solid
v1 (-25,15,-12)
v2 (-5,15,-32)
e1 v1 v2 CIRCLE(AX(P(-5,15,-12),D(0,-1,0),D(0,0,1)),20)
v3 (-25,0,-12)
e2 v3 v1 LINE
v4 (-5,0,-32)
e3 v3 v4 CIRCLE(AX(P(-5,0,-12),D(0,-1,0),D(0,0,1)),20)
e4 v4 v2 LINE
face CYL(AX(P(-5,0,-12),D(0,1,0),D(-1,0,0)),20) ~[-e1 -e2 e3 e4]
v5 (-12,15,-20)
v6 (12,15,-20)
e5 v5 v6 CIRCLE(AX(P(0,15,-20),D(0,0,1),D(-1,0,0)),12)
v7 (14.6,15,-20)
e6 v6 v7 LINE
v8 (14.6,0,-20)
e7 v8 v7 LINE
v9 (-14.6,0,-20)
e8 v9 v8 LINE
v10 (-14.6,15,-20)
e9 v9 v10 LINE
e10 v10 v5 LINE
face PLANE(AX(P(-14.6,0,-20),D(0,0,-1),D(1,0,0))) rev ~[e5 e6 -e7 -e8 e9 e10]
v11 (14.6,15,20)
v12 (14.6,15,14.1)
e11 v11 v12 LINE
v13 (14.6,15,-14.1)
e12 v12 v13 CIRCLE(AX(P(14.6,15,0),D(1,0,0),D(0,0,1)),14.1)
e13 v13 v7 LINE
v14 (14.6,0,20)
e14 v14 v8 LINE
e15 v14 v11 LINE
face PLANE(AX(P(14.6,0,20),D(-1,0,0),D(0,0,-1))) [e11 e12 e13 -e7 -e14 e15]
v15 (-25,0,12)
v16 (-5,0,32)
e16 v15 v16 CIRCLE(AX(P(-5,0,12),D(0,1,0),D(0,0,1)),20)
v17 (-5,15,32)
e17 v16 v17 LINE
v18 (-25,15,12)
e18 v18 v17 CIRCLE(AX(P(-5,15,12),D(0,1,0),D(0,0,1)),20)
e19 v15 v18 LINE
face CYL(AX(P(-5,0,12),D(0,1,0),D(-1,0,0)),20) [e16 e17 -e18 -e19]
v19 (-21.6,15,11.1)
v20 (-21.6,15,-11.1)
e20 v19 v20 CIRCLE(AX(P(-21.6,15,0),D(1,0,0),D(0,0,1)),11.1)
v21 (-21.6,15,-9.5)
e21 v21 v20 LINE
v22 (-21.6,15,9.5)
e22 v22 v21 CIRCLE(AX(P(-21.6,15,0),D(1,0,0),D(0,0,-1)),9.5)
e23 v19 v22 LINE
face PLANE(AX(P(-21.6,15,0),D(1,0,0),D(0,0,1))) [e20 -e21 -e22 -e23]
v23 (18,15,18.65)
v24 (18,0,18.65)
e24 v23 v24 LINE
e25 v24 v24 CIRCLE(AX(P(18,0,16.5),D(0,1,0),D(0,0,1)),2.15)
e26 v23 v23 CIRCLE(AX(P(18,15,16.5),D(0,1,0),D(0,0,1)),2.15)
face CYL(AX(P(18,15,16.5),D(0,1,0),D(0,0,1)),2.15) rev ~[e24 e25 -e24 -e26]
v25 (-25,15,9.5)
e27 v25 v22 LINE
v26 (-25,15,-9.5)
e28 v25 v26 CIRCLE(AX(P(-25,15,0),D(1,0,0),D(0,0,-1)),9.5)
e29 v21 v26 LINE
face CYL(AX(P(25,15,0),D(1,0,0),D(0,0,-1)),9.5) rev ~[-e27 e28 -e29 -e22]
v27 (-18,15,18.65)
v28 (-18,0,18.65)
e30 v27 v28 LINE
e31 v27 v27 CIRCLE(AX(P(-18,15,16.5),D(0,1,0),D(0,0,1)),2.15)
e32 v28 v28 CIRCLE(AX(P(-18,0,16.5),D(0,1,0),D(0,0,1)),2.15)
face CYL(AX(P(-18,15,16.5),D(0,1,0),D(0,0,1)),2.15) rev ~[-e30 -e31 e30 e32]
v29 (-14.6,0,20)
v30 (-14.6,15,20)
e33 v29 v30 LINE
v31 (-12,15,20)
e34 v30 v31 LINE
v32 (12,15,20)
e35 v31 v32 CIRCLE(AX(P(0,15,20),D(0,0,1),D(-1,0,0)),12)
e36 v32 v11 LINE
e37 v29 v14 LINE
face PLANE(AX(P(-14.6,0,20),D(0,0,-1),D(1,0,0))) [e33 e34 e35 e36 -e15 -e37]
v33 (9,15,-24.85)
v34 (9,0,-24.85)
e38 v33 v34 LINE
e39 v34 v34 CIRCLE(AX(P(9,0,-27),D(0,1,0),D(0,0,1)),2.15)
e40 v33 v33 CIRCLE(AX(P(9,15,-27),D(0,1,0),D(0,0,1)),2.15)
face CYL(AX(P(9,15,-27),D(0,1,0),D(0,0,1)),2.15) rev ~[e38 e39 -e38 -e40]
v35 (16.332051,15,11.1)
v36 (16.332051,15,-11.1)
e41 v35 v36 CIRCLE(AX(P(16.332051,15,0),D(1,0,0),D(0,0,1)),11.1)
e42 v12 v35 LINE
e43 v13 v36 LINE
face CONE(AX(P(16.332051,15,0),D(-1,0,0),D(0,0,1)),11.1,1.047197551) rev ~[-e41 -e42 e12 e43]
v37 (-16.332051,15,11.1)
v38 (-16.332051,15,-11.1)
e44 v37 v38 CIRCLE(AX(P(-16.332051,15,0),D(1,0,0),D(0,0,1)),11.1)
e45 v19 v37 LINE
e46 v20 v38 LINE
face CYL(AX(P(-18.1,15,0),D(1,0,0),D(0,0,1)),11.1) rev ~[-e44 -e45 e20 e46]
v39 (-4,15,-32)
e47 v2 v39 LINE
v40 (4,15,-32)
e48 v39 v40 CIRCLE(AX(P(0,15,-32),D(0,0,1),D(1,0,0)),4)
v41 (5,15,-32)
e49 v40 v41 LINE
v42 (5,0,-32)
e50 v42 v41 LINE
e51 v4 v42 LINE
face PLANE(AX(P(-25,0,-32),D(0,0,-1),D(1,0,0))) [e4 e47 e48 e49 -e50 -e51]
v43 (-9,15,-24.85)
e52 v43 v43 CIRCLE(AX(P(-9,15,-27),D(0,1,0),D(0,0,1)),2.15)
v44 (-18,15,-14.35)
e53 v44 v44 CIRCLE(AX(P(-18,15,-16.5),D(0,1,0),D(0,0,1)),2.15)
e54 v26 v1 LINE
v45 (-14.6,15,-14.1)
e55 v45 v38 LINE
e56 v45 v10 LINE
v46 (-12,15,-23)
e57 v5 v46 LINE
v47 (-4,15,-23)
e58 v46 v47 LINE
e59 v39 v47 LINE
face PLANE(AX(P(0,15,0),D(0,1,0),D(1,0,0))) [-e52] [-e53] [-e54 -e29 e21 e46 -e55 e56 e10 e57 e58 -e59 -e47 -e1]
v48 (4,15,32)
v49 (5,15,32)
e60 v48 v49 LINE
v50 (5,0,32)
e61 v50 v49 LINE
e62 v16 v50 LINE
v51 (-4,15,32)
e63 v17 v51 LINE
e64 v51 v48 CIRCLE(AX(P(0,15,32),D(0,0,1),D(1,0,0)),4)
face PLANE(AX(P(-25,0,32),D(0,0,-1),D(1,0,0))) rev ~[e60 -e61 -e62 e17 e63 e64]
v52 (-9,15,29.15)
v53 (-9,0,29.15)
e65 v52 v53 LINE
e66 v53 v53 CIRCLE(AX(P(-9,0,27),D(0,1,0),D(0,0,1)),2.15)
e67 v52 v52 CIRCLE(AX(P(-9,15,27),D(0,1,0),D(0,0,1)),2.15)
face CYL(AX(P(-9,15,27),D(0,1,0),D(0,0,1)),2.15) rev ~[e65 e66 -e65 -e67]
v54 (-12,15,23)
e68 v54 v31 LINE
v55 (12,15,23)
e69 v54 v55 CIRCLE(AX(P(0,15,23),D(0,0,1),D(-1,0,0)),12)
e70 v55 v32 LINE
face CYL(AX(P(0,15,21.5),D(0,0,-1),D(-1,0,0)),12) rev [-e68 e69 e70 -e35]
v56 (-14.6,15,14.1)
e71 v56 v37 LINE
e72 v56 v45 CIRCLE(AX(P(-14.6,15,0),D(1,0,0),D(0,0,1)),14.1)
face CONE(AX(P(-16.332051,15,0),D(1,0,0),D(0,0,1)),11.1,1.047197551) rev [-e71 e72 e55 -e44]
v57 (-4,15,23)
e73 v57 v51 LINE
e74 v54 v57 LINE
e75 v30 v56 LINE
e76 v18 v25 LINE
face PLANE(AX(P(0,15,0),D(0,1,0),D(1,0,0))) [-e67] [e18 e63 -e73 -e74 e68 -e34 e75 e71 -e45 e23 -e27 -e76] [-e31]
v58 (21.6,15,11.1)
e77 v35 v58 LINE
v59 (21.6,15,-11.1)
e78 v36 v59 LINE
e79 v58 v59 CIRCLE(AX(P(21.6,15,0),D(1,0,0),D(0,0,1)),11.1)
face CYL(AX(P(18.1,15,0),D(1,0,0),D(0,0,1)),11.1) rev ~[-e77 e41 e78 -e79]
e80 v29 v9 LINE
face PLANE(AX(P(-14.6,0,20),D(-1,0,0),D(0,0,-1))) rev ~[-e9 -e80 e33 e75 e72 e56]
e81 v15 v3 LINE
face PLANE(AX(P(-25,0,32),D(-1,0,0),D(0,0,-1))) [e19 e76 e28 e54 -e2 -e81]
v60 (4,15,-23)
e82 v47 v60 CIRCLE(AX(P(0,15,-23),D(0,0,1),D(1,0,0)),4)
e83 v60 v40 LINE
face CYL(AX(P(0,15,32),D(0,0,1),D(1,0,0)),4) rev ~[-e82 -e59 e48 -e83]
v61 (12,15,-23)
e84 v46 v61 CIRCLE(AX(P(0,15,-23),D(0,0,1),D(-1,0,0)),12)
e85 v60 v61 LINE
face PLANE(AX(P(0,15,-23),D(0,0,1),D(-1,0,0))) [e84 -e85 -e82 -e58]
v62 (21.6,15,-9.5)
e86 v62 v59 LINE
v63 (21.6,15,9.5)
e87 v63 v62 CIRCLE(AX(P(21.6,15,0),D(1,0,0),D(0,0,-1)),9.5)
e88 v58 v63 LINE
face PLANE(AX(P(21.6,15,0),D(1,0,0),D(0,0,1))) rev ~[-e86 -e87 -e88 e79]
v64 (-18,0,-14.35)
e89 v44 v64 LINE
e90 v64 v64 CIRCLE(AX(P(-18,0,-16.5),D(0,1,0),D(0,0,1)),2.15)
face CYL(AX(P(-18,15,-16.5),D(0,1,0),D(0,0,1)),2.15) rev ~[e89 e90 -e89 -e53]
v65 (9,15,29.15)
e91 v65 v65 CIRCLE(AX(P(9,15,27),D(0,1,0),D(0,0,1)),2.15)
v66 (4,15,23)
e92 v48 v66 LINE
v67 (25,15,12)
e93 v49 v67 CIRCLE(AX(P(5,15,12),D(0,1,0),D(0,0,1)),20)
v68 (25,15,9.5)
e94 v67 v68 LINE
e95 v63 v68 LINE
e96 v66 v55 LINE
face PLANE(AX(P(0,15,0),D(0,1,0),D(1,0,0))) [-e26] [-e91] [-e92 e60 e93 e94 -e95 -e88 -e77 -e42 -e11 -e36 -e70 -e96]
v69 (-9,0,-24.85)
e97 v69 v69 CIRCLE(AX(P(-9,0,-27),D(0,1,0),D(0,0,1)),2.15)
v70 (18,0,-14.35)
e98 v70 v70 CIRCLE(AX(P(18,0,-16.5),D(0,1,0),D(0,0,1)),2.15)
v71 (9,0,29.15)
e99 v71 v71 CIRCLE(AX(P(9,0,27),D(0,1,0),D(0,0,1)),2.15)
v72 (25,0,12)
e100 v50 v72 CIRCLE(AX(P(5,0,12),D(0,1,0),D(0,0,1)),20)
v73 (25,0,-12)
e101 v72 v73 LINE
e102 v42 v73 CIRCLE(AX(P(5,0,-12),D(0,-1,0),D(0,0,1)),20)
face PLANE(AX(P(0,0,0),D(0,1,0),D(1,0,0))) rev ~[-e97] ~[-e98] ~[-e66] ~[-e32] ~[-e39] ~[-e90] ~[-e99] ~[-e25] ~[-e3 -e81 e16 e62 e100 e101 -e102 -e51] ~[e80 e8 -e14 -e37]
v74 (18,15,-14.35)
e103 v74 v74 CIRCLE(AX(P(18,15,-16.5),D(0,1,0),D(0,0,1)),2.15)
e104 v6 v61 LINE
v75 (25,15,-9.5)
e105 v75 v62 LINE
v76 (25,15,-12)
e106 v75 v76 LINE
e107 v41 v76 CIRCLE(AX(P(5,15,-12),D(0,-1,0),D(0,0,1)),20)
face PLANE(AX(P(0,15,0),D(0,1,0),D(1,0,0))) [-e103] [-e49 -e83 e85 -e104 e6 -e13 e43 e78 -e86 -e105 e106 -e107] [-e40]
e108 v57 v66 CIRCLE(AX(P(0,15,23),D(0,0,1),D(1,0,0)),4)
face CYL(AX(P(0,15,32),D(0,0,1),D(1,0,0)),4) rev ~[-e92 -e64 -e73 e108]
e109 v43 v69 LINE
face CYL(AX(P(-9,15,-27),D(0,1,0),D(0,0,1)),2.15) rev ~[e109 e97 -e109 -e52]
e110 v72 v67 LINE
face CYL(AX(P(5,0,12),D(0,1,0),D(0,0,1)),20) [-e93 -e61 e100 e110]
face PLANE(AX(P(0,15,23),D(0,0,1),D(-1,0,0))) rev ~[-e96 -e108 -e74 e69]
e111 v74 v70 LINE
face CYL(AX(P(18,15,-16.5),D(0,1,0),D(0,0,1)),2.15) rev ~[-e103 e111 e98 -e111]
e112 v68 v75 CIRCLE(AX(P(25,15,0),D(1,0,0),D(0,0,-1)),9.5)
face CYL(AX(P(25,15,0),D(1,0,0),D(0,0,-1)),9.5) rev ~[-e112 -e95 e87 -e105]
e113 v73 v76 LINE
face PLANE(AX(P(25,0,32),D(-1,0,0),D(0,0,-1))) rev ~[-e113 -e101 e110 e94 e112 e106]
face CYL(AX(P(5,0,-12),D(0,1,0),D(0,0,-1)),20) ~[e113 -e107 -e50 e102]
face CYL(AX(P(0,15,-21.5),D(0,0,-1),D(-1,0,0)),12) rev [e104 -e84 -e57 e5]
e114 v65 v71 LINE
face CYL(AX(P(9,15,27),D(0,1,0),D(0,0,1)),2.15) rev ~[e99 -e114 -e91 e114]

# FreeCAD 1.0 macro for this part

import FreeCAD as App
import Part
import Sketcher

V = App.Vector
Q = App.Units.Quantity


def edges_at(feature, points):
    """Names of the edges that pass closest to the given points."""
    edges = feature.Shape.Edges
    near = lambda p: min(range(len(edges)), key=lambda i: edges[i].distToShape(Part.Vertex(*p))[0])
    return sorted({f"Edge{near(p) + 1}" for p in points})


def add_polygon(sketch, points):
    """Adds a closed chain of lines whose ends are joined by coincident constraints."""
    first, n = sketch.GeometryCount, len(points)
    for a, b in zip(points, points[1:] + points[:1]):
        sketch.addGeometry(Part.LineSegment(App.Vector(*a, 0), App.Vector(*b, 0)), False)
    for i in range(n):
        sketch.addConstraint(Sketcher.Constraint("Coincident", first + i, 2, first + (i + 1) % n, 1))

doc = App.newDocument("Part")
body = doc.addObject("PartDesign::Body", "Body")

# Sketch on XZ plane
sketch1 = body.newObject("Sketcher::SketchObject", "Sketch")
sketch1.AttachmentSupport = (doc.getObject("XZ_Plane"), [""])
sketch1.MapMode = "FlatFace"
add_polygon(sketch1, [(-25, -32), (-25, 32), (25, 32), (25, -32)])  # lines 0-3
add_polygon(sketch1, [(15, 20), (-15, 20), (-15, -20), (15, -20)])  # lines 4-7
sketch1.addConstraint(Sketcher.Constraint("Vertical", 0))
sketch1.addConstraint(Sketcher.Constraint("Horizontal", 1))
sketch1.addConstraint(Sketcher.Constraint("Vertical", 2))
sketch1.addConstraint(Sketcher.Constraint("Horizontal", 3))
sketch1.addConstraint(Sketcher.Constraint("Horizontal", 4))
sketch1.addConstraint(Sketcher.Constraint("Vertical", 5))
sketch1.addConstraint(Sketcher.Constraint("Horizontal", 6))
sketch1.addConstraint(Sketcher.Constraint("Vertical", 7))
sketch1.addConstraint(Sketcher.Constraint("Symmetric", 0, 2, 2, 2, -1, 1))
sketch1.addConstraint(Sketcher.Constraint("Symmetric", 4, 2, 6, 2, -1, 1))
sketch1.addConstraint(Sketcher.Constraint("DistanceX", 1, 1, 1, 2, Q("50 mm")))
sketch1.addConstraint(Sketcher.Constraint("DistanceY", 0, 1, 0, 2, Q("64 mm")))
sketch1.addConstraint(Sketcher.Constraint("DistanceY", 5, 2, 5, 1, Q("40 mm")))
sketch1.addConstraint(Sketcher.Constraint("DistanceX", 4, 2, 4, 1, Q("29.2 mm")))
pad1 = body.newObject("PartDesign::Pad", "Pad")
pad1.Profile = sketch1
pad1.Length = 15
pad1.Reversed = True

# Sketch on XZ plane
sketch2 = body.newObject("Sketcher::SketchObject", "Sketch001")
sketch2.AttachmentSupport = (doc.getObject("XZ_Plane"), [""])
sketch2.MapMode = "FlatFace"
sketch2.AttachmentOffset = App.Placement(V(0, 0, -15), App.Rotation())
add_polygon(sketch2, [(15, 0), (15, 11), (22, 11), (22, 0)])  # lines 0-3
add_polygon(sketch2, [(-22, 0), (-22, 11), (-15, 11), (-15, 0)])  # lines 4-7
sketch2.addConstraint(Sketcher.Constraint("Vertical", 0))
sketch2.addConstraint(Sketcher.Constraint("Horizontal", 1))
sketch2.addConstraint(Sketcher.Constraint("Vertical", 2))
sketch2.addConstraint(Sketcher.Constraint("Horizontal", 3))
sketch2.addConstraint(Sketcher.Constraint("Vertical", 4))
sketch2.addConstraint(Sketcher.Constraint("Horizontal", 5))
sketch2.addConstraint(Sketcher.Constraint("Vertical", 6))
sketch2.addConstraint(Sketcher.Constraint("Horizontal", 7))
sketch2.addConstraint(Sketcher.Constraint("Symmetric", 3, 2, 6, 2, -1, 1))
sketch2.addConstraint(Sketcher.Constraint("Symmetric", 1, 2, 4, 2, -2))
sketch2.addConstraint(Sketcher.Constraint("PointOnObject", 2, 2, -1))
sketch2.addConstraint(Sketcher.Constraint("DistanceX", 1, 1, 1, 2, Q("7 mm")))
sketch2.addConstraint(Sketcher.Constraint("DistanceY", 0, 1, 0, 2, Q("11.1 mm")))
sketch2.addConstraint(Sketcher.Constraint("DistanceX", -1, 1, 0, 2, Q("14.6 mm")))
groove = body.newObject("PartDesign::Groove", "Groove")
groove.Profile = sketch2
groove.ReferenceAxis = (sketch2, ["H_Axis"])
groove.Angle = 360

# Sketch on YZ plane
sketch3 = body.newObject("Sketcher::SketchObject", "Sketch002")
sketch3.AttachmentSupport = (doc.getObject("YZ_Plane"), [""])
sketch3.MapMode = "FlatFace"
sketch3.AttachmentOffset = App.Placement(V(0, 0, 25), App.Rotation())
sketch3.addGeometry(Part.Circle(V(15, 0, 0), V(0, 0, 1), 10), False)
sketch3.addConstraint(Sketcher.Constraint("PointOnObject", 0, 3, -1))
sketch3.addConstraint(Sketcher.Constraint("Diameter", 0, Q("19 mm")))
sketch3.addConstraint(Sketcher.Constraint("DistanceX", -1, 1, 0, 3, Q("15 mm")))
pocket1 = body.newObject("PartDesign::Pocket", "Pocket")
pocket1.Profile = sketch3
pocket1.Type = "ThroughAll"

# Sketch on XY plane
sketch4 = body.newObject("Sketcher::SketchObject", "Sketch003")
sketch4.AttachmentSupport = (doc.getObject("XY_Plane"), [""])
sketch4.MapMode = "FlatFace"
sketch4.AttachmentOffset = App.Placement(V(0, 0, 32), App.Rotation())
sketch4.addGeometry(Part.Circle(V(0, 15, 0), V(0, 0, 1), 4), False)
sketch4.addConstraint(Sketcher.Constraint("PointOnObject", 0, 3, -2))
sketch4.addConstraint(Sketcher.Constraint("Diameter", 0, Q("8 mm")))
sketch4.addConstraint(Sketcher.Constraint("DistanceY", -1, 1, 0, 3, Q("15 mm")))
pocket2 = body.newObject("PartDesign::Pocket", "Pocket001")
pocket2.Profile = sketch4
pocket2.Type = "ThroughAll"

# Sketch on XZ plane
sketch5 = body.newObject("Sketcher::SketchObject", "Sketch004")
sketch5.AttachmentSupport = (doc.getObject("XZ_Plane"), [""])
sketch5.MapMode = "FlatFace"
sketch5.AttachmentOffset = App.Placement(V(0, 0, -15), App.Rotation())
sketch5.addGeometry(Part.Circle(V(18, -16.5, 0), V(0, 0, 1), 2.1), False)
sketch5.addGeometry(Part.Circle(V(18, 16.5, 0), V(0, 0, 1), 2.1), False)
sketch5.addGeometry(Part.Circle(V(-18, 16.5, 0), V(0, 0, 1), 2.1), False)
sketch5.addGeometry(Part.Circle(V(-18, -16.5, 0), V(0, 0, 1), 2.1), False)
sketch5.addGeometry(Part.Circle(V(9, 27, 0), V(0, 0, 1), 2.1), False)
sketch5.addGeometry(Part.Circle(V(-9, 27, 0), V(0, 0, 1), 2.1), False)
sketch5.addGeometry(Part.Circle(V(-9, -27, 0), V(0, 0, 1), 2.1), False)
sketch5.addGeometry(Part.Circle(V(9, -27, 0), V(0, 0, 1), 2.1), False)
sketch5.addConstraint(Sketcher.Constraint("Equal", 0, 1))
sketch5.addConstraint(Sketcher.Constraint("Equal", 1, 2))
sketch5.addConstraint(Sketcher.Constraint("Equal", 2, 3))
sketch5.addConstraint(Sketcher.Constraint("Equal", 3, 4))
sketch5.addConstraint(Sketcher.Constraint("Equal", 4, 5))
sketch5.addConstraint(Sketcher.Constraint("Equal", 5, 6))
sketch5.addConstraint(Sketcher.Constraint("Equal", 6, 7))
sketch5.addConstraint(Sketcher.Constraint("Symmetric", 0, 3, 2, 3, -1, 1))
sketch5.addConstraint(Sketcher.Constraint("Symmetric", 1, 3, 3, 3, -1, 1))
sketch5.addConstraint(Sketcher.Constraint("Symmetric", 4, 3, 6, 3, -1, 1))
sketch5.addConstraint(Sketcher.Constraint("Symmetric", 5, 3, 7, 3, -1, 1))
sketch5.addConstraint(Sketcher.Constraint("Symmetric", 1, 3, 2, 3, -2))
sketch5.addConstraint(Sketcher.Constraint("Symmetric", 4, 3, 5, 3, -2))
sketch5.addConstraint(Sketcher.Constraint("Diameter", 0, Q("4.3 mm")))
sketch5.addConstraint(Sketcher.Constraint("DistanceX", -1, 1, 0, 3, Q("18 mm")))
sketch5.addConstraint(Sketcher.Constraint("DistanceX", -1, 1, 4, 3, Q("9 mm")))
sketch5.addConstraint(Sketcher.Constraint("DistanceY", -1, 1, 4, 3, Q("27 mm")))
sketch5.addConstraint(Sketcher.Constraint("DistanceY", 0, 3, 1, 3, Q("33 mm")))
pocket3 = body.newObject("PartDesign::Pocket", "Pocket002")
pocket3.Profile = sketch5
pocket3.Type = "ThroughAll"
pocket3.Reversed = True
doc.recompute()

fillet = body.newObject("PartDesign::Fillet", "Fillet")
fillet.Base = (pocket3, edges_at(pocket3, [
    (-25, 7.5, -32),
    (25, 7.5, -32),
    (25, 7.5, 32),
    (-25, 7.5, 32),
]))
fillet.Radius = 20
doc.recompute()

chamfer = body.newObject("PartDesign::Chamfer", "Chamfer")
chamfer.Base = (fillet, edges_at(fillet, [(14.6, 3.9, 0)]))
chamfer.ChamferType = "Two distances"
chamfer.Size = 3
chamfer.Size2 = 1.732051
doc.recompute()

chamfer2 = body.newObject("PartDesign::Chamfer", "Chamfer001")
chamfer2.Base = (chamfer, edges_at(chamfer, [(-14.6, 3.9, 0)]))
chamfer2.ChamferType = "Two distances"
chamfer2.Size = 3
chamfer2.Size2 = 1.732051

# Sketch on XZ plane
sketch6 = body.newObject("Sketcher::SketchObject", "Sketch005")
sketch6.AttachmentSupport = (doc.getObject("XZ_Plane"), [""])
sketch6.MapMode = "FlatFace"
sketch6.AttachmentOffset = App.Placement(V(0, 0, -15), App.Rotation())
add_polygon(sketch6, [(-12, 20), (-12, 23), (0, 23), (0, 20)])  # lines 0-3
add_polygon(sketch6, [(-12, -23), (-12, -20), (0, -20), (0, -23)])  # lines 4-7
sketch6.addConstraint(Sketcher.Constraint("Vertical", 0))
sketch6.addConstraint(Sketcher.Constraint("Horizontal", 1))
sketch6.addConstraint(Sketcher.Constraint("Vertical", 2))
sketch6.addConstraint(Sketcher.Constraint("Horizontal", 3))
sketch6.addConstraint(Sketcher.Constraint("Vertical", 4))
sketch6.addConstraint(Sketcher.Constraint("Horizontal", 5))
sketch6.addConstraint(Sketcher.Constraint("Vertical", 6))
sketch6.addConstraint(Sketcher.Constraint("Horizontal", 7))
sketch6.addConstraint(Sketcher.Constraint("Symmetric", 2, 2, 5, 2, -1, 1))
sketch6.addConstraint(Sketcher.Constraint("Symmetric", 1, 2, 6, 2, -1))
sketch6.addConstraint(Sketcher.Constraint("Vertical", 3, 2, 4, 2))
sketch6.addConstraint(Sketcher.Constraint("DistanceX", 1, 1, 1, 2, Q("12 mm")))
sketch6.addConstraint(Sketcher.Constraint("DistanceY", 0, 1, 0, 2, Q("3 mm")))
sketch6.addConstraint(Sketcher.Constraint("DistanceY", -1, 1, 0, 2, Q("23 mm")))
groove2 = body.newObject("PartDesign::Groove", "Groove001")
groove2.Profile = sketch6
groove2.ReferenceAxis = (sketch6, ["V_Axis"])
groove2.Angle = 360

doc.recompute()
